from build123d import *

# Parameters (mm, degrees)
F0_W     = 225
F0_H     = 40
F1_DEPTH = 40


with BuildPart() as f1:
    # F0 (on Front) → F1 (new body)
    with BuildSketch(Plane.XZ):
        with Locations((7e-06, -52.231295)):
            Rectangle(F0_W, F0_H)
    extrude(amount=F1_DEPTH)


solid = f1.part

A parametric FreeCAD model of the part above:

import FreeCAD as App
import Part
import Sketcher
Q = App.Units.Quantity


def add_polygon(sketch, points):
    """Adds a closed chain of lines whose ends are joined by coincident constraints."""
    first, n = sketch.GeometryCount, len(points)
    for a, b in zip(points, points[1:] + points[:1]):
        sketch.addGeometry(Part.LineSegment(App.Vector(*a, 0), App.Vector(*b, 0)), False)
    for i in range(n):
        sketch.addConstraint(Sketcher.Constraint("Coincident", first + i, 2, first + (i + 1) % n, 1))

doc = App.newDocument("Part")
body = doc.addObject("PartDesign::Body", "Body")

sketch1 = body.newObject("Sketcher::SketchObject", "Sketch")
sketch1.AttachmentSupport = (doc.getObject("XZ_Plane"), [""])
sketch1.MapMode = "FlatFace"
add_polygon(sketch1, [(-112, -32), (-112, -72), (113, -72), (113, -32)])
sketch1.addConstraint(Sketcher.Constraint("Vertical", 0))
sketch1.addConstraint(Sketcher.Constraint("Horizontal", 1))
sketch1.addConstraint(Sketcher.Constraint("Vertical", 2))
sketch1.addConstraint(Sketcher.Constraint("Horizontal", 3))
sketch1.addConstraint(Sketcher.Constraint("DistanceX", 1, 1, 1, 2, Q("225 mm")))
sketch1.addConstraint(Sketcher.Constraint("DistanceY", 0, 2, 0, 1, Q("40 mm")))
sketch1.addConstraint(Sketcher.Constraint("DistanceX", 0, 2, -1, 1, Q("112.499993 mm")))
sketch1.addConstraint(Sketcher.Constraint("DistanceY", 0, 2, -1, 1, Q("72.231295 mm")))
pad1 = body.newObject("PartDesign::Pad", "Pad")
pad1.Profile = sketch1
pad1.Length = 40

doc.recompute()
